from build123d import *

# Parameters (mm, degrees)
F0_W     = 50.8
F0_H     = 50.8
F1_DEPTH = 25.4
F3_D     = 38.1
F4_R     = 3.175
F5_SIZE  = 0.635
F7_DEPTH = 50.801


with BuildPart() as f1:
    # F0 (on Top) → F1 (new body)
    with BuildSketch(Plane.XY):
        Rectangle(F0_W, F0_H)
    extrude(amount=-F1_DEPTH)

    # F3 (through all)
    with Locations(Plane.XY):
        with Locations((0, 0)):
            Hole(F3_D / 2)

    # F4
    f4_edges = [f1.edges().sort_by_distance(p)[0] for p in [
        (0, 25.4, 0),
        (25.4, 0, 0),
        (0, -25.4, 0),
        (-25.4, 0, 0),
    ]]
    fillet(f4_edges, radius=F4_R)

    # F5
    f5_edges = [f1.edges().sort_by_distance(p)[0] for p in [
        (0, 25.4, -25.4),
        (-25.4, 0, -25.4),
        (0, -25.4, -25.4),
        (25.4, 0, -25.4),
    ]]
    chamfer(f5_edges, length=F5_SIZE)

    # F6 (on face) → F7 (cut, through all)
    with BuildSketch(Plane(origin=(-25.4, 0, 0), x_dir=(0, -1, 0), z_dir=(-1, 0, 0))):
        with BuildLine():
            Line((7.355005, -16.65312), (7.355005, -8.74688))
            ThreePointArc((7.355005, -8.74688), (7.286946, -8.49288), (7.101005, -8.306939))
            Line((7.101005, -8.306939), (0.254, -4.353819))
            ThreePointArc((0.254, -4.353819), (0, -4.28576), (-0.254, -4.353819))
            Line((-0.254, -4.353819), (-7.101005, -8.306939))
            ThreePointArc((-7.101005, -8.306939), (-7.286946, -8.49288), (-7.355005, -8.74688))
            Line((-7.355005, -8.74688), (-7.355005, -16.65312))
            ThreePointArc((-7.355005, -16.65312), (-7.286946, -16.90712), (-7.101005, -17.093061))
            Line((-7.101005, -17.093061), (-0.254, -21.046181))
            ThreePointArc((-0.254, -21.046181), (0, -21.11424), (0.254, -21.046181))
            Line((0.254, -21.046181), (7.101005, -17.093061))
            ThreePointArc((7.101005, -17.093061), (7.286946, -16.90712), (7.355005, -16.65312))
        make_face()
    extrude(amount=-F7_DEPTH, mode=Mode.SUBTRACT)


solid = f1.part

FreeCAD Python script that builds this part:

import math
import FreeCAD as App
import Part
import Sketcher

V = App.Vector
Q = App.Units.Quantity


def edges_at(feature, points):
    """Names of the edges that pass closest to the given points."""
    edges = feature.Shape.Edges
    near = lambda p: min(range(len(edges)), key=lambda i: edges[i].distToShape(Part.Vertex(*p))[0])
    return sorted({f"Edge{near(p) + 1}" for p in points})

doc = App.newDocument("Part")
body = doc.addObject("PartDesign::Body", "Body")

# Sketch on XY plane
sketch1 = body.newObject("Sketcher::SketchObject", "Sketch")
sketch1.AttachmentSupport = (doc.getObject("XY_Plane"), [""])
sketch1.MapMode = "FlatFace"
sketch1.addGeometry([
    Part.LineSegment(V(-25, 25, 0), V(-25, -25, 0)),
    Part.LineSegment(V(-25, -25, 0), V(25, -25, 0)),
    Part.LineSegment(V(25, -25, 0), V(25, 25, 0)),
    Part.LineSegment(V(25, 25, 0), V(-25, 25, 0)),
], False)
sketch1.addConstraint([
    Sketcher.Constraint("Coincident", 0, 2, 1, 1),
    Sketcher.Constraint("Coincident", 1, 2, 2, 1),
    Sketcher.Constraint("Coincident", 2, 2, 3, 1),
    Sketcher.Constraint("Coincident", 3, 2, 0, 1),
    Sketcher.Constraint("Vertical", 0),
    Sketcher.Constraint("Horizontal", 1),
    Sketcher.Constraint("Vertical", 2),
    Sketcher.Constraint("Horizontal", 3),
    Sketcher.Constraint("Symmetric", 0, 2, 2, 2, -1, 1),
    Sketcher.Constraint("Equal", 3, 0),
    Sketcher.Constraint("DistanceX", 1, 1, 1, 2, Q("2 in")),
])
pad1 = body.newObject("PartDesign::Pad", "Pad")
pad1.Profile = sketch1
pad1.Length = Q("1 in")
pad1.Reversed = True

# Sketch on XY plane
sketch2 = body.newObject("Sketcher::SketchObject", "Sketch001")
sketch2.AttachmentSupport = (doc.getObject("XY_Plane"), [""])
sketch2.MapMode = "FlatFace"
sketch2.addGeometry(Part.Circle(V(0, 0, 0), V(0, 0, 1), 19), False)
sketch2.addConstraint([
    Sketcher.Constraint("Coincident", 0, 3, -1, 1),
    Sketcher.Constraint("Diameter", 0, Q("1.5 in")),
])
doc.recompute()
hole = body.newObject("PartDesign::Hole", "Hole")
hole.Profile = sketch2
hole.ThreadType = "None"
hole.Diameter = Q("1.5 in")
hole.DepthType = "ThroughAll"
doc.recompute()

fillet = body.newObject("PartDesign::Fillet", "Fillet")
fillet.Base = (hole, edges_at(hole, [
    (0, 25.4, 0),
    (25.4, 0, 0),
    (0, -25.4, 0),
    (-25.4, 0, 0),
]))
fillet.Radius = Q("0.125 in")
doc.recompute()

chamfer = body.newObject("PartDesign::Chamfer", "Chamfer")
chamfer.Base = (fillet, edges_at(fillet, [
    (0, 25.4, -25.4),
    (-25.4, 0, -25.4),
    (0, -25.4, -25.4),
    (25.4, 0, -25.4),
]))
chamfer.Size = Q("0.025 in")

# Sketch on YZ plane
sketch3 = body.newObject("Sketcher::SketchObject", "Sketch002")
sketch3.AttachmentSupport = (doc.getObject("YZ_Plane"), [""])
sketch3.MapMode = "FlatFace"
sketch3.AttachmentOffset = App.Placement(V(0, 0, -1 * 25.4), App.Rotation())
sketch3.addGeometry([
    Part.LineSegment(V(-7.4, -16.7, 0), V(-7.4, -8.7, 0)),  # 0
    Part.ArcOfCircle(Part.Circle(V(-6.8, -8.7, 0), V(0, 0, 1), 0.5), math.radians(120), math.radians(180)),  # 1
    Part.LineSegment(V(-7.1, -8.3, 0), V(-0.3, -4.4, 0)),  # 2
    Part.ArcOfCircle(Part.Circle(V(0, -4.8, 0), V(0, 0, 1), 0.5), math.radians(60), math.radians(120)),  # 3
    Part.LineSegment(V(0.3, -4.4, 0), V(7.1, -8.3, 0)),  # 4
    Part.ArcOfCircle(Part.Circle(V(6.8, -8.7, 0), V(0, 0, 1), 0.5), math.radians(0), math.radians(60)),  # 5
    Part.LineSegment(V(7.4, -8.7, 0), V(7.4, -16.7, 0)),  # 6
    Part.ArcOfCircle(Part.Circle(V(6.8, -16.7, 0), V(0, 0, 1), 0.5), math.radians(-60), math.radians(0)),  # 7
    Part.LineSegment(V(7.1, -17.1, 0), V(0.3, -21, 0)),  # 8
    Part.ArcOfCircle(Part.Circle(V(0, -20.6, 0), V(0, 0, 1), 0.5), math.radians(-120), math.radians(-60)),  # 9
    Part.LineSegment(V(-0.3, -21, 0), V(-7.1, -17.1, 0)),  # 10
    Part.ArcOfCircle(Part.Circle(V(-6.8, -16.7, 0), V(0, 0, 1), 0.5), math.radians(180), math.radians(240)),  # 11
], False)
sketch3.addConstraint([
    Sketcher.Constraint("Tangent", 0, 2, 1, 2),
    Sketcher.Constraint("Tangent", 1, 1, 2, 1),
    Sketcher.Constraint("Tangent", 2, 2, 3, 2),
    Sketcher.Constraint("Tangent", 3, 1, 4, 1),
    Sketcher.Constraint("Tangent", 4, 2, 5, 2),
    Sketcher.Constraint("Tangent", 5, 1, 6, 1),
    Sketcher.Constraint("Tangent", 6, 2, 7, 2),
    Sketcher.Constraint("Tangent", 7, 1, 8, 1),
    Sketcher.Constraint("Tangent", 8, 2, 9, 2),
    Sketcher.Constraint("Tangent", 9, 1, 10, 1),
    Sketcher.Constraint("Tangent", 10, 2, 11, 2),
    Sketcher.Constraint("Tangent", 11, 1, 0, 1),
    Sketcher.Constraint("Vertical", 0),
    Sketcher.Constraint("Vertical", 6),
    Sketcher.Constraint("Equal", 1, 3),
    Sketcher.Constraint("Equal", 3, 5),
    Sketcher.Constraint("Equal", 5, 7),
    Sketcher.Constraint("Equal", 7, 9),
    Sketcher.Constraint("Equal", 9, 11),
    Sketcher.Constraint("Symmetric", 1, 3, 5, 3, -2),
    Sketcher.Constraint("Symmetric", 8, 2, 9, 1, -2),
    Sketcher.Constraint("PointOnObject", 3, 3, -2),
    Sketcher.Constraint("Parallel", 2, 8),
    Sketcher.Constraint("Radius", 1, Q("0.02 in")),
    Sketcher.Constraint("Angle", 2, Q("29.999999 deg")),
    Sketcher.Constraint("DistanceY", 0, 1, 0, 2, 7.90624),
    Sketcher.Constraint("Distance", 2, 7.90624),
    Sketcher.Constraint("DistanceY", 1, 3, -1, 1, 8.74688),
])
pocket1 = body.newObject("PartDesign::Pocket", "Pocket")
pocket1.Profile = sketch3
pocket1.Type = "ThroughAll"
pocket1.Reversed = True

doc.recompute()
